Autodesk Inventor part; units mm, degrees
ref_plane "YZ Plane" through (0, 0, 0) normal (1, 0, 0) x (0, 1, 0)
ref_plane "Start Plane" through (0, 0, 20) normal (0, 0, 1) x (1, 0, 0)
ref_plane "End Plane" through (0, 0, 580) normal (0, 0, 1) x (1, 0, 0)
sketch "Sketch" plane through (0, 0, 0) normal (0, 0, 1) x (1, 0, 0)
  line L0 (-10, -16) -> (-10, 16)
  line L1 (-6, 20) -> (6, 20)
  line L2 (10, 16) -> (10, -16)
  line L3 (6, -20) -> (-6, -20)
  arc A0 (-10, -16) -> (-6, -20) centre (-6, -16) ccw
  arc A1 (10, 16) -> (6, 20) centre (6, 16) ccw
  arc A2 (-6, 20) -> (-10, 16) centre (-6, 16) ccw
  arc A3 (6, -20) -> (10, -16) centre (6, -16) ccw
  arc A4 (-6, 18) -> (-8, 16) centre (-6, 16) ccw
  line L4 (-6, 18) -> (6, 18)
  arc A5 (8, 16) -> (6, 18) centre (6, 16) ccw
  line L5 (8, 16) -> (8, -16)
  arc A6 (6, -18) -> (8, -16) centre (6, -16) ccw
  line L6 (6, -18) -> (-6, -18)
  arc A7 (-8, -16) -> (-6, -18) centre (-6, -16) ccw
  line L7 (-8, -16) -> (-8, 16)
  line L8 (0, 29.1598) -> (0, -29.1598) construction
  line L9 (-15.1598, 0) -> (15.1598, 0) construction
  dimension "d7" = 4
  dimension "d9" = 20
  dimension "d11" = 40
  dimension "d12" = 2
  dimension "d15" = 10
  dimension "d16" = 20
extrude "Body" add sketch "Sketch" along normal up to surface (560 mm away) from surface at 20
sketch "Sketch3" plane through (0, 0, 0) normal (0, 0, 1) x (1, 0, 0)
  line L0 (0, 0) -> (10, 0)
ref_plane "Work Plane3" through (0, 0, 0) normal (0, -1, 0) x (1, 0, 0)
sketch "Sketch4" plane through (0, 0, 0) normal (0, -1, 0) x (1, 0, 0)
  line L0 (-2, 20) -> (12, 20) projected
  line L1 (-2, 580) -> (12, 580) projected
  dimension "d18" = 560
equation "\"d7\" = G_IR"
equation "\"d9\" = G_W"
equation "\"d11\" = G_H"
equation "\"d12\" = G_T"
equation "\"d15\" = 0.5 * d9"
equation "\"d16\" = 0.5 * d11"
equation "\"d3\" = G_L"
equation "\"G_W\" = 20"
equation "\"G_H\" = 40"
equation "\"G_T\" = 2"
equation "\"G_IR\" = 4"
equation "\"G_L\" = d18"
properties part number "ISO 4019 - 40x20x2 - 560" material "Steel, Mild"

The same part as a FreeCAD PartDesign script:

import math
import FreeCAD as App
import Part
import Sketcher

V = App.Vector

doc = App.newDocument("Part")
body = doc.addObject("PartDesign::Body", "Body")

# Sketch on XY plane
sketch1 = body.newObject("Sketcher::SketchObject", "Sketch")
sketch1.AttachmentSupport = (doc.getObject("XY_Plane"), [""])
sketch1.MapMode = "FlatFace"
sketch1.AttachmentOffset = App.Placement(V(0, 0, 20), App.Rotation())
sketch1.addGeometry([
    Part.LineSegment(V(-10, 16, 0), V(-10, -16, 0)),  # 0
    Part.ArcOfCircle(Part.Circle(V(-6, -16, 0), V(0, 0, 1), 4), math.radians(180), math.radians(270)),  # 1
    Part.LineSegment(V(-6, -20, 0), V(6, -20, 0)),  # 2
    Part.ArcOfCircle(Part.Circle(V(6, -16, 0), V(0, 0, 1), 4), math.radians(-90), math.radians(0)),  # 3
    Part.LineSegment(V(10, -16, 0), V(10, 16, 0)),  # 4
    Part.ArcOfCircle(Part.Circle(V(6, 16, 0), V(0, 0, 1), 4), math.radians(0), math.radians(90)),  # 5
    Part.LineSegment(V(6, 20, 0), V(-6, 20, 0)),  # 6
    Part.ArcOfCircle(Part.Circle(V(-6, 16, 0), V(0, 0, 1), 4), math.radians(90), math.radians(180)),  # 7
    Part.ArcOfCircle(Part.Circle(V(-6, 16, 0), V(0, 0, 1), 2), math.radians(90), math.radians(180)),  # 8
    Part.LineSegment(V(-6, 18, 0), V(6, 18, 0)),  # 9
    Part.ArcOfCircle(Part.Circle(V(6, 16, 0), V(0, 0, 1), 2), math.radians(0), math.radians(90)),  # 10
    Part.LineSegment(V(8, 16, 0), V(8, -16, 0)),  # 11
    Part.ArcOfCircle(Part.Circle(V(6, -16, 0), V(0, 0, 1), 2), math.radians(-90), math.radians(0)),  # 12
    Part.LineSegment(V(6, -18, 0), V(-6, -18, 0)),  # 13
    Part.ArcOfCircle(Part.Circle(V(-6, -16, 0), V(0, 0, 1), 2), math.radians(180), math.radians(270)),  # 14
    Part.LineSegment(V(-8, -16, 0), V(-8, 16, 0)),  # 15
], False)
sketch1.addConstraint([
    Sketcher.Constraint("Tangent", 0, 2, 1, 1),
    Sketcher.Constraint("Tangent", 1, 2, 2, 1),
    Sketcher.Constraint("Tangent", 2, 2, 3, 1),
    Sketcher.Constraint("Tangent", 3, 2, 4, 1),
    Sketcher.Constraint("Tangent", 4, 2, 5, 1),
    Sketcher.Constraint("Tangent", 5, 2, 6, 1),
    Sketcher.Constraint("Tangent", 6, 2, 7, 1),
    Sketcher.Constraint("Tangent", 7, 2, 0, 1),
    Sketcher.Constraint("Tangent", 8, 1, 9, 1),
    Sketcher.Constraint("Tangent", 9, 2, 10, 2),
    Sketcher.Constraint("Tangent", 10, 1, 11, 1),
    Sketcher.Constraint("Tangent", 11, 2, 12, 2),
    Sketcher.Constraint("Tangent", 12, 1, 13, 1),
    Sketcher.Constraint("Tangent", 13, 2, 14, 2),
    Sketcher.Constraint("Tangent", 14, 1, 15, 1),
    Sketcher.Constraint("Tangent", 15, 2, 8, 2),
    Sketcher.Constraint("Vertical", 0),
    Sketcher.Constraint("Horizontal", 2),
    Sketcher.Constraint("Vertical", 4),
    Sketcher.Constraint("Horizontal", 6),
    Sketcher.Constraint("Horizontal", 9),
    Sketcher.Constraint("Vertical", 11),
    Sketcher.Constraint("Horizontal", 13),
    Sketcher.Constraint("Vertical", 15),
    Sketcher.Constraint("Coincident", 8, 3, 7, 3),
    Sketcher.Constraint("Coincident", 10, 3, 5, 3),
    Sketcher.Constraint("Coincident", 12, 3, 3, 3),
    Sketcher.Constraint("Equal", 1, 3),
    Sketcher.Constraint("Equal", 3, 5),
    Sketcher.Constraint("Equal", 5, 7),
    Sketcher.Constraint("Equal", 12, 14),
    Sketcher.Constraint("Symmetric", 1, 3, 5, 3, -1, 1),
    Sketcher.Constraint("Radius", 1, 4.0),
    Sketcher.Constraint("Radius", 8, 2.0),
    Sketcher.Constraint("DistanceX", 0, 2, -1, 1, 10.0),
    Sketcher.Constraint("DistanceY", 1, 2, -1, 1, 20.0),
])
pad1 = body.newObject("PartDesign::Pad", "Pad")
pad1.Profile = sketch1
pad1.Length = 560

doc.recompute()
